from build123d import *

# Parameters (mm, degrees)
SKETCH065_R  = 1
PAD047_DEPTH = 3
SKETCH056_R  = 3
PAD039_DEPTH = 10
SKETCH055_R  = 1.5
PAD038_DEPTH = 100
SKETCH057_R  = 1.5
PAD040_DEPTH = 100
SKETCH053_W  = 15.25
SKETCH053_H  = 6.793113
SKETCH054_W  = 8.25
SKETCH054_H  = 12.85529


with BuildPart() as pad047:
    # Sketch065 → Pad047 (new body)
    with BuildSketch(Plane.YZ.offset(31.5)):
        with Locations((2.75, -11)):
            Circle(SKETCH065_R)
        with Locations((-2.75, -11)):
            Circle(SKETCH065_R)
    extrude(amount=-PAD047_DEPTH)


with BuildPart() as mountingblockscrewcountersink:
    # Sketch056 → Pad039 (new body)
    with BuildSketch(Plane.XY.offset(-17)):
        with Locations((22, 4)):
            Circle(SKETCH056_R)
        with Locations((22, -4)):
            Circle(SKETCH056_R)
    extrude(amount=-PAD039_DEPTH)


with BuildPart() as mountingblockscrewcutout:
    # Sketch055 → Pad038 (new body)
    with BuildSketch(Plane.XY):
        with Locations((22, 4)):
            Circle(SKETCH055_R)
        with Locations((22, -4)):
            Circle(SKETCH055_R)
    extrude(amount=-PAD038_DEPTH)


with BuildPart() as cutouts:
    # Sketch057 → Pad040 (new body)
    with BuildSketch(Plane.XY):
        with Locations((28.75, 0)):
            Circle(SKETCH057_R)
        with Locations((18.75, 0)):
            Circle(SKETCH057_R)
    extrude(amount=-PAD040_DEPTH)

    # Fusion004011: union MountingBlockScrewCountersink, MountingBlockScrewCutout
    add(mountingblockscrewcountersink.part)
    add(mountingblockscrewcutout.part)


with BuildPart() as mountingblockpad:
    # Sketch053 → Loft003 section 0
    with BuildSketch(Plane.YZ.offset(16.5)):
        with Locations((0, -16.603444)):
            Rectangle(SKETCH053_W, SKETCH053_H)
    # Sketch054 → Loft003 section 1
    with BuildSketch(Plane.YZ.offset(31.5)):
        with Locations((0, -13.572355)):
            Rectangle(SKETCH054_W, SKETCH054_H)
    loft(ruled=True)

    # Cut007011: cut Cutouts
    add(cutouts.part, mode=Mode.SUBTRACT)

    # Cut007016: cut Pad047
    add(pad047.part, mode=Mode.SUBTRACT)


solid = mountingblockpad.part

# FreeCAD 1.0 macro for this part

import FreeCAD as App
import Part
import Sketcher

doc = App.newDocument("Part")
body = doc.addObject("PartDesign::Body", "Body")
body.AllowCompound = True

# Sketch on YZ plane
sketch1 = body.newObject("Sketcher::SketchObject", "Sketch")
sketch1.AttachmentSupport = (doc.getObject("YZ_Plane"), [""])
sketch1.MapMode = "FlatFace"
sketch1.AttachmentOffset = App.Placement(App.Vector(0, 0, 31.5), App.Rotation())
sketch1.addGeometry([
    Part.Circle(App.Vector(2.75, -11, 0), App.Vector(0, 0, 1), 1),
    Part.Circle(App.Vector(-2.75, -11, 0), App.Vector(0, 0, 1), 1),
], False)
sketch1.addConstraint([
    Sketcher.Constraint("Equal", 0, 1),
    Sketcher.Constraint("Symmetric", 0, 3, 1, 3, -2),
    Sketcher.Constraint("Diameter", 0, 2.0),
    Sketcher.Constraint("DistanceY", 0, 3, -1, 1, 11.0),
    Sketcher.Constraint("DistanceX", 1, 3, 0, 3, 5.5),
])
pad1 = body.newObject("PartDesign::Pad", "Pad")
pad1.Profile = sketch1
pad1.Length = 3
pad1.Reversed = True
body2 = doc.addObject("PartDesign::Body", "Body001")
body2.AllowCompound = True

# Sketch on XY plane
sketch2 = body2.newObject("Sketcher::SketchObject", "Sketch001")
sketch2.AttachmentSupport = (doc.getObject("XY_Plane001"), [""])
sketch2.MapMode = "FlatFace"
sketch2.AttachmentOffset = App.Placement(App.Vector(0, 0, -17), App.Rotation())
sketch2.addGeometry([
    Part.Circle(App.Vector(22, 4, 0), App.Vector(0, 0, 1), 3),
    Part.Circle(App.Vector(22, -4, 0), App.Vector(0, 0, 1), 3),
], False)
sketch2.addConstraint([
    Sketcher.Constraint("Equal", 0, 1),
    Sketcher.Constraint("Symmetric", 0, 3, 1, 3, -1),
    Sketcher.Constraint("Diameter", 0, 6.0),
    Sketcher.Constraint("DistanceX", -1, 1, 0, 3, 22.0),
    Sketcher.Constraint("DistanceY", -1, 1, 0, 3, 4.0),
])
pad2 = body2.newObject("PartDesign::Pad", "Pad001")
pad2.Profile = sketch2
pad2.Length = 10
pad2.Reversed = True
body3 = doc.addObject("PartDesign::Body", "Body002")
body3.AllowCompound = True

# Sketch on XY plane
sketch3 = body3.newObject("Sketcher::SketchObject", "Sketch002")
sketch3.AttachmentSupport = (doc.getObject("XY_Plane002"), [""])
sketch3.MapMode = "FlatFace"
sketch3.addGeometry([
    Part.Circle(App.Vector(22, 4, 0), App.Vector(0, 0, 1), 1.5),
    Part.Circle(App.Vector(22, -4, 0), App.Vector(0, 0, 1), 1.5),
], False)
sketch3.addConstraint([
    Sketcher.Constraint("Equal", 0, 1),
    Sketcher.Constraint("Symmetric", 0, 3, 1, 3, -1),
    Sketcher.Constraint("Diameter", 0, 3.0),
    Sketcher.Constraint("DistanceX", -1, 1, 0, 3, 22.0),
    Sketcher.Constraint("DistanceY", -1, 1, 0, 3, 4.0),
])
pad3 = body3.newObject("PartDesign::Pad", "Pad002")
pad3.Profile = sketch3
pad3.Length = 100
pad3.Reversed = True
body4 = doc.addObject("PartDesign::Body", "Body003")
body4.AllowCompound = True

# Sketch on XY plane
sketch4 = body4.newObject("Sketcher::SketchObject", "Sketch003")
sketch4.AttachmentSupport = (doc.getObject("XY_Plane003"), [""])
sketch4.MapMode = "FlatFace"
sketch4.addGeometry([
    Part.Circle(App.Vector(28.75, 0, 0), App.Vector(0, 0, 1), 1.5),
    Part.Circle(App.Vector(18.75, 0, 0), App.Vector(0, 0, 1), 1.5),
], False)
sketch4.addConstraint([
    Sketcher.Constraint("Equal", 0, 1),
    Sketcher.Constraint("PointOnObject", 0, 3, -1),
    Sketcher.Constraint("PointOnObject", 1, 3, -1),
    Sketcher.Constraint("Diameter", 0, 3.0),
    Sketcher.Constraint("DistanceX", 1, 3, 0, 3, 10.0),
    Sketcher.Constraint("DistanceX", -1, 1, 0, 3, 28.75),
])
pad4 = body4.newObject("PartDesign::Pad", "Pad003")
pad4.Profile = sketch4
pad4.Length = 100
pad4.Reversed = True
doc.recompute()

boolean = body4.newObject("PartDesign::Boolean", "Boolean")
boolean.Type = "Fuse"
boolean.addObjects([body2])
doc.recompute()

boolean2 = body4.newObject("PartDesign::Boolean", "Boolean001")
boolean2.Type = "Fuse"
boolean2.addObjects([body3])
body5 = doc.addObject("PartDesign::Body", "Body004")

# Sketch on YZ plane
sketch5 = body5.newObject("Sketcher::SketchObject", "Sketch004")
sketch5.AttachmentSupport = (doc.getObject("YZ_Plane004"), [""])
sketch5.MapMode = "FlatFace"
sketch5.AttachmentOffset = App.Placement(App.Vector(0, 0, 16.5), App.Rotation())
sketch5.addGeometry([
    Part.LineSegment(App.Vector(-7.625, -13.206888, 0), App.Vector(-7.625, -20, 0)),
    Part.LineSegment(App.Vector(-7.625, -20, 0), App.Vector(7.625, -20, 0)),
    Part.LineSegment(App.Vector(7.625, -20, 0), App.Vector(7.625, -13.206888, 0)),
    Part.LineSegment(App.Vector(7.625, -13.206888, 0), App.Vector(-7.625, -13.206888, 0)),
], False)
sketch5.addConstraint([
    Sketcher.Constraint("Coincident", 0, 2, 1, 1),
    Sketcher.Constraint("Coincident", 1, 2, 2, 1),
    Sketcher.Constraint("Coincident", 2, 2, 3, 1),
    Sketcher.Constraint("Coincident", 3, 2, 0, 1),
    Sketcher.Constraint("Vertical", 0),
    Sketcher.Constraint("Horizontal", 1),
    Sketcher.Constraint("Vertical", 2),
    Sketcher.Constraint("Horizontal", 3),
    Sketcher.Constraint("DistanceY", 0, 2, -1, 1, 20.0),
    Sketcher.Constraint("DistanceX", 1, 1, 1, 2, 15.25),
    Sketcher.Constraint("DistanceX", 0, 2, -1, 1, 7.625),
    Sketcher.Constraint("DistanceY", 0, 2, 0, 1, 6.793113),
])

# Sketch on YZ plane
sketch6 = body5.newObject("Sketcher::SketchObject", "Sketch005")
sketch6.AttachmentSupport = (doc.getObject("YZ_Plane004"), [""])
sketch6.MapMode = "FlatFace"
sketch6.AttachmentOffset = App.Placement(App.Vector(0, 0, 31.5), App.Rotation())
sketch6.addGeometry([
    Part.LineSegment(App.Vector(-4.125, -7.14471, 0), App.Vector(-4.125, -20, 0)),
    Part.LineSegment(App.Vector(-4.125, -20, 0), App.Vector(4.125, -20, 0)),
    Part.LineSegment(App.Vector(4.125, -20, 0), App.Vector(4.125, -7.14471, 0)),
    Part.LineSegment(App.Vector(4.125, -7.14471, 0), App.Vector(-4.125, -7.14471, 0)),
], False)
sketch6.addConstraint([
    Sketcher.Constraint("Coincident", 0, 2, 1, 1),
    Sketcher.Constraint("Coincident", 1, 2, 2, 1),
    Sketcher.Constraint("Coincident", 2, 2, 3, 1),
    Sketcher.Constraint("Coincident", 3, 2, 0, 1),
    Sketcher.Constraint("Vertical", 0),
    Sketcher.Constraint("Horizontal", 1),
    Sketcher.Constraint("Vertical", 2),
    Sketcher.Constraint("Horizontal", 3),
    Sketcher.Constraint("DistanceY", 0, 2, -1, 1, 20.0),
    Sketcher.Constraint("DistanceX", 1, 1, 1, 2, 8.25),
    Sketcher.Constraint("DistanceX", 0, 2, -1, 1, 4.125),
    Sketcher.Constraint("DistanceY", 0, 2, 0, 1, 12.85529),
])

additiveloft = body5.newObject("PartDesign::AdditiveLoft", "AdditiveLoft")
additiveloft.Profile = sketch5
additiveloft.Sections = [sketch6]
additiveloft.Ruled = True
doc.recompute()

boolean3 = body5.newObject("PartDesign::Boolean", "Boolean002")
boolean3.Type = "Cut"
boolean3.addObjects([body4])
doc.recompute()

boolean4 = body5.newObject("PartDesign::Boolean", "Boolean003")
boolean4.Type = "Cut"
boolean4.addObjects([body])

doc.recompute()
